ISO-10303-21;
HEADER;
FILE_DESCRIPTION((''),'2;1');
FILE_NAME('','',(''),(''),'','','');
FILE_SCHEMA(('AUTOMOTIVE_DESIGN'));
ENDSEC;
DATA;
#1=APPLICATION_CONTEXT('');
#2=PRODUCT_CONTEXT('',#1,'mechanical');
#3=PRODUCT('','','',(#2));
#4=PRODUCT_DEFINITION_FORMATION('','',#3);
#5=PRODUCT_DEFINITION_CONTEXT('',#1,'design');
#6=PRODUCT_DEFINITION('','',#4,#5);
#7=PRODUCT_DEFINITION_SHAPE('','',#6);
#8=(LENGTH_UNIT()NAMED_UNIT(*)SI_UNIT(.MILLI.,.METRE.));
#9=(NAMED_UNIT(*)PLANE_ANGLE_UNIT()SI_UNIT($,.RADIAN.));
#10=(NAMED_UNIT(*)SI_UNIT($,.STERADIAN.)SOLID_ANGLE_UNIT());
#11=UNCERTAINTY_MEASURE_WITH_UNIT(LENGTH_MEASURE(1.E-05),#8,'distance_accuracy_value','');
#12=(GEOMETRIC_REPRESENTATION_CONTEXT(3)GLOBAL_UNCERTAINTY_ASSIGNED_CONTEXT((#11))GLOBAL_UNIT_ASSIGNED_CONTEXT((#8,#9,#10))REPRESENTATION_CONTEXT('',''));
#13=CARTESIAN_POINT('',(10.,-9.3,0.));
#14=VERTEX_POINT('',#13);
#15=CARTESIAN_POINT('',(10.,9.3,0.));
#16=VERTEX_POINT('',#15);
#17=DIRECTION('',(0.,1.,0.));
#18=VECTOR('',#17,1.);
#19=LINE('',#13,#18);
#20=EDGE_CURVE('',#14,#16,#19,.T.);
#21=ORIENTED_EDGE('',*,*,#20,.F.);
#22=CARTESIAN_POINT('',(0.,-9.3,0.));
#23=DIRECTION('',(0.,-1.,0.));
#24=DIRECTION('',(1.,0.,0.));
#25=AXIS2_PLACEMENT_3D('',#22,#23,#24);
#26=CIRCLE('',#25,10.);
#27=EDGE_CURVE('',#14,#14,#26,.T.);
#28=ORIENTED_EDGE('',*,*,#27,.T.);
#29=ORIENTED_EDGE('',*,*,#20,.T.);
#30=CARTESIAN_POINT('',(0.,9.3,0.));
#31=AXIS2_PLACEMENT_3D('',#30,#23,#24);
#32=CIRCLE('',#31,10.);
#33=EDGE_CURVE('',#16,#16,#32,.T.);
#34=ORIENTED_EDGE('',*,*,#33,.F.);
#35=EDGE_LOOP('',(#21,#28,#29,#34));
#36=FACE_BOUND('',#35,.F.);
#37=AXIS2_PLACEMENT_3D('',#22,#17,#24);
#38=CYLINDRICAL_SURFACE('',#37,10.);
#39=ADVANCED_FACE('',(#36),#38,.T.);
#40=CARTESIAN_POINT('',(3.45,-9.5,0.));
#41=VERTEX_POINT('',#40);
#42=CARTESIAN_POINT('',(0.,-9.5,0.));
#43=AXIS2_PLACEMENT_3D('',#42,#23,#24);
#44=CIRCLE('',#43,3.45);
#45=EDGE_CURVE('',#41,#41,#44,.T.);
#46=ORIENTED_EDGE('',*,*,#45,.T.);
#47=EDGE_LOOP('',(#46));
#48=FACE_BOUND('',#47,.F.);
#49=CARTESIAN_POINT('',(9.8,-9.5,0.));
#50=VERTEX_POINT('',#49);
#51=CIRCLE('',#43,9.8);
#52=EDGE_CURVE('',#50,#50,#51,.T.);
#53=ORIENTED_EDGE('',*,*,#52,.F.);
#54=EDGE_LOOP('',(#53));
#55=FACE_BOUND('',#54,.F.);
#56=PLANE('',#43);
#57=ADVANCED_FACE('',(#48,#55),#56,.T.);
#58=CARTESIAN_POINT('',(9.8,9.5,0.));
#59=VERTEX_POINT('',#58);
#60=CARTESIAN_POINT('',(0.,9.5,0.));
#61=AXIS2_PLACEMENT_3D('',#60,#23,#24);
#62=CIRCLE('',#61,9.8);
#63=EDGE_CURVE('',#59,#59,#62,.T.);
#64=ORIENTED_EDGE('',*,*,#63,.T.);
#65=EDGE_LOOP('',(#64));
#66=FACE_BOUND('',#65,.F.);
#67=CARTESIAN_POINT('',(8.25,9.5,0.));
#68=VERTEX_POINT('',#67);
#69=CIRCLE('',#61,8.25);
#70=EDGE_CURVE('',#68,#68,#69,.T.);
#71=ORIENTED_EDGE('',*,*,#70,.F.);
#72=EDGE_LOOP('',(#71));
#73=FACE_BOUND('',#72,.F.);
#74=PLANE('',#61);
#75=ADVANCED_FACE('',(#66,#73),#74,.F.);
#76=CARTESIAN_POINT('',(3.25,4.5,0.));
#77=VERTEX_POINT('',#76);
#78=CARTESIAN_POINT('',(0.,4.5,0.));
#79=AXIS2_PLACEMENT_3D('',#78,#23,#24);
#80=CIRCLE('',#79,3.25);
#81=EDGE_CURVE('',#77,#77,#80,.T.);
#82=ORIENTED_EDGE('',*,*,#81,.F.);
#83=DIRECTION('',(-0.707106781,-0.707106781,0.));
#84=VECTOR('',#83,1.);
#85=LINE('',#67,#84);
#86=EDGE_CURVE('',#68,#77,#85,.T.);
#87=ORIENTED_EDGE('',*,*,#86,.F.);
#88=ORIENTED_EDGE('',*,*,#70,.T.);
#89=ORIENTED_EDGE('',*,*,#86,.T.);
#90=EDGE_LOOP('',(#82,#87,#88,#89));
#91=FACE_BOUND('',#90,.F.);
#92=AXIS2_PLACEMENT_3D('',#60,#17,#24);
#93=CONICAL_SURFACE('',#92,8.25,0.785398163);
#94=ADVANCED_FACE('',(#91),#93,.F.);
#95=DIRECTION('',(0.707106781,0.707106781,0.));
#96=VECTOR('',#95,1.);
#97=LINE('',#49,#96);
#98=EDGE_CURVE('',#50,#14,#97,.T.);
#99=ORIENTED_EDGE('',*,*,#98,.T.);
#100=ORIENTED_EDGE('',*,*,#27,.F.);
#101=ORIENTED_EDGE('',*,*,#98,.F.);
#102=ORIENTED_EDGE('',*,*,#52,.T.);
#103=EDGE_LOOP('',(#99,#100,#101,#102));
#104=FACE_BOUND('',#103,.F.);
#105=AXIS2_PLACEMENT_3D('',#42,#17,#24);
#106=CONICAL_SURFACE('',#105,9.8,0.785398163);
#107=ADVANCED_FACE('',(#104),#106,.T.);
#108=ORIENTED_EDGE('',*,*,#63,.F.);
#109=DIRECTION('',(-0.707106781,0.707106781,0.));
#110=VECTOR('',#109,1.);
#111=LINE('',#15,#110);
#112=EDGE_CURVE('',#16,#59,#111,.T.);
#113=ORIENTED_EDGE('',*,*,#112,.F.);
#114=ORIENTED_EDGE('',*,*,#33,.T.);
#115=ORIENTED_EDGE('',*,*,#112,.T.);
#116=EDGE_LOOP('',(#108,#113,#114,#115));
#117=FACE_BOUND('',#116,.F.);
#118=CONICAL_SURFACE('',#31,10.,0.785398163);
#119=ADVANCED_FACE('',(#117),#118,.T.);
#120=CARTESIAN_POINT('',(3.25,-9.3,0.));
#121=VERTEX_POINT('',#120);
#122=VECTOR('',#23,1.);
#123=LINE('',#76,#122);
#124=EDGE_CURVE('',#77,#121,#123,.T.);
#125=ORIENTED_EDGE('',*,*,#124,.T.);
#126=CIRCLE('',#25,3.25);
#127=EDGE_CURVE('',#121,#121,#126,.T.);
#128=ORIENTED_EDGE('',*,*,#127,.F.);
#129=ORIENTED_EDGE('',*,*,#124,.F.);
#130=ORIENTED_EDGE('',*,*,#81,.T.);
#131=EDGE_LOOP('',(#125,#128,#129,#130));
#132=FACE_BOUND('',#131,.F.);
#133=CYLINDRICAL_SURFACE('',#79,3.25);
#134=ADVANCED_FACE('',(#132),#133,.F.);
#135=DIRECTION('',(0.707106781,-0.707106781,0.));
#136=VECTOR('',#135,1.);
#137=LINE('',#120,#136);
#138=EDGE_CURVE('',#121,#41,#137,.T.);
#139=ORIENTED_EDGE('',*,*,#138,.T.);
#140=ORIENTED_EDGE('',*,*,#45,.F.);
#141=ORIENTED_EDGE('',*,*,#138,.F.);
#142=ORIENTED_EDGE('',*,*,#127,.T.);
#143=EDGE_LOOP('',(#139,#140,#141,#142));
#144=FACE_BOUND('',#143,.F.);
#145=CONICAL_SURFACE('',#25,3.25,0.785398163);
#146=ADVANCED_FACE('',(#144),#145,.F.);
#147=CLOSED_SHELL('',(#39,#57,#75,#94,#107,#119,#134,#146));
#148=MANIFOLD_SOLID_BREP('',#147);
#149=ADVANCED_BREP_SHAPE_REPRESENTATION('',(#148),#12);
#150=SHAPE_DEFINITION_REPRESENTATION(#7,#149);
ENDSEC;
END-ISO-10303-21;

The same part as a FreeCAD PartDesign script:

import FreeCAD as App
import Part
import Sketcher

doc = App.newDocument("Part")
body = doc.addObject("PartDesign::Body", "Body")

sketch1 = body.newObject("Sketcher::SketchObject", "Sketch")
sketch1.AttachmentSupport = (doc.getObject("XY_Plane"), [""])
sketch1.MapMode = "FlatFace"
sketch1.addGeometry(Part.LineSegment(App.Vector(3.45, -9.5, 0), App.Vector(9.8, -9.5, 0)), False)
sketch1.addGeometry(Part.LineSegment(App.Vector(9.8, -9.5, 0), App.Vector(10, -9.3, 0)), False)
sketch1.addGeometry(Part.LineSegment(App.Vector(10, -9.3, 0), App.Vector(10, 9.3, 0)), False)
sketch1.addGeometry(Part.LineSegment(App.Vector(10, 9.3, 0), App.Vector(9.8, 9.5, 0)), False)
sketch1.addGeometry(Part.LineSegment(App.Vector(9.8, 9.5, 0), App.Vector(8.25, 9.5, 0)), False)
sketch1.addGeometry(Part.LineSegment(App.Vector(8.25, 9.5, 0), App.Vector(3.25, 4.5, 0)), False)
sketch1.addGeometry(Part.LineSegment(App.Vector(3.25, 4.5, 0), App.Vector(3.25, -9.3, 0)), False)
sketch1.addGeometry(Part.LineSegment(App.Vector(3.25, -9.3, 0), App.Vector(3.45, -9.5, 0)), False)
sketch1.addConstraint(Sketcher.Constraint("Coincident", 0, 2, 1, 1))
sketch1.addConstraint(Sketcher.Constraint("Coincident", 1, 2, 2, 1))
sketch1.addConstraint(Sketcher.Constraint("Coincident", 2, 2, 3, 1))
sketch1.addConstraint(Sketcher.Constraint("Coincident", 3, 2, 4, 1))
sketch1.addConstraint(Sketcher.Constraint("Coincident", 4, 2, 5, 1))
sketch1.addConstraint(Sketcher.Constraint("Coincident", 5, 2, 6, 1))
sketch1.addConstraint(Sketcher.Constraint("Coincident", 6, 2, 7, 1))
sketch1.addConstraint(Sketcher.Constraint("Coincident", 7, 2, 0, 1))
sketch1.addConstraint(Sketcher.Constraint("Horizontal", 0))
sketch1.addConstraint(Sketcher.Constraint("Vertical", 2))
sketch1.addConstraint(Sketcher.Constraint("Horizontal", 4))
sketch1.addConstraint(Sketcher.Constraint("Vertical", 6))
sketch1.addConstraint(Sketcher.Constraint("Symmetric", 0, 2, 3, 2, -1))
sketch1.addConstraint(Sketcher.Constraint("Perpendicular", 1, 3))
sketch1.addConstraint(Sketcher.Constraint("Perpendicular", 3, 5))
sketch1.addConstraint(Sketcher.Constraint("Perpendicular", 5, 7))
sketch1.addConstraint(Sketcher.Constraint("Horizontal", 1, 2, 6, 2))
sketch1.addConstraint(Sketcher.Constraint("Equal", 1, 3))
sketch1.addConstraint(Sketcher.Constraint("DistanceY", 2, 1, 2, 2, 18.6))
sketch1.addConstraint(Sketcher.Constraint("DistanceY", 6, 2, 6, 1, 13.8))
sketch1.addConstraint(Sketcher.Constraint("DistanceX", -1, 1, 1, 2, 10.0))
sketch1.addConstraint(Sketcher.Constraint("DistanceY", 0, 2, 3, 2, 19.0))
sketch1.addConstraint(Sketcher.Constraint("DistanceX", 0, 1, 0, 2, 6.35))
revolution = body.newObject("PartDesign::Revolution", "Revolution")
revolution.Profile = sketch1
revolution.ReferenceAxis = (sketch1, ["V_Axis"])
revolution.Angle = 360

doc.recompute()
